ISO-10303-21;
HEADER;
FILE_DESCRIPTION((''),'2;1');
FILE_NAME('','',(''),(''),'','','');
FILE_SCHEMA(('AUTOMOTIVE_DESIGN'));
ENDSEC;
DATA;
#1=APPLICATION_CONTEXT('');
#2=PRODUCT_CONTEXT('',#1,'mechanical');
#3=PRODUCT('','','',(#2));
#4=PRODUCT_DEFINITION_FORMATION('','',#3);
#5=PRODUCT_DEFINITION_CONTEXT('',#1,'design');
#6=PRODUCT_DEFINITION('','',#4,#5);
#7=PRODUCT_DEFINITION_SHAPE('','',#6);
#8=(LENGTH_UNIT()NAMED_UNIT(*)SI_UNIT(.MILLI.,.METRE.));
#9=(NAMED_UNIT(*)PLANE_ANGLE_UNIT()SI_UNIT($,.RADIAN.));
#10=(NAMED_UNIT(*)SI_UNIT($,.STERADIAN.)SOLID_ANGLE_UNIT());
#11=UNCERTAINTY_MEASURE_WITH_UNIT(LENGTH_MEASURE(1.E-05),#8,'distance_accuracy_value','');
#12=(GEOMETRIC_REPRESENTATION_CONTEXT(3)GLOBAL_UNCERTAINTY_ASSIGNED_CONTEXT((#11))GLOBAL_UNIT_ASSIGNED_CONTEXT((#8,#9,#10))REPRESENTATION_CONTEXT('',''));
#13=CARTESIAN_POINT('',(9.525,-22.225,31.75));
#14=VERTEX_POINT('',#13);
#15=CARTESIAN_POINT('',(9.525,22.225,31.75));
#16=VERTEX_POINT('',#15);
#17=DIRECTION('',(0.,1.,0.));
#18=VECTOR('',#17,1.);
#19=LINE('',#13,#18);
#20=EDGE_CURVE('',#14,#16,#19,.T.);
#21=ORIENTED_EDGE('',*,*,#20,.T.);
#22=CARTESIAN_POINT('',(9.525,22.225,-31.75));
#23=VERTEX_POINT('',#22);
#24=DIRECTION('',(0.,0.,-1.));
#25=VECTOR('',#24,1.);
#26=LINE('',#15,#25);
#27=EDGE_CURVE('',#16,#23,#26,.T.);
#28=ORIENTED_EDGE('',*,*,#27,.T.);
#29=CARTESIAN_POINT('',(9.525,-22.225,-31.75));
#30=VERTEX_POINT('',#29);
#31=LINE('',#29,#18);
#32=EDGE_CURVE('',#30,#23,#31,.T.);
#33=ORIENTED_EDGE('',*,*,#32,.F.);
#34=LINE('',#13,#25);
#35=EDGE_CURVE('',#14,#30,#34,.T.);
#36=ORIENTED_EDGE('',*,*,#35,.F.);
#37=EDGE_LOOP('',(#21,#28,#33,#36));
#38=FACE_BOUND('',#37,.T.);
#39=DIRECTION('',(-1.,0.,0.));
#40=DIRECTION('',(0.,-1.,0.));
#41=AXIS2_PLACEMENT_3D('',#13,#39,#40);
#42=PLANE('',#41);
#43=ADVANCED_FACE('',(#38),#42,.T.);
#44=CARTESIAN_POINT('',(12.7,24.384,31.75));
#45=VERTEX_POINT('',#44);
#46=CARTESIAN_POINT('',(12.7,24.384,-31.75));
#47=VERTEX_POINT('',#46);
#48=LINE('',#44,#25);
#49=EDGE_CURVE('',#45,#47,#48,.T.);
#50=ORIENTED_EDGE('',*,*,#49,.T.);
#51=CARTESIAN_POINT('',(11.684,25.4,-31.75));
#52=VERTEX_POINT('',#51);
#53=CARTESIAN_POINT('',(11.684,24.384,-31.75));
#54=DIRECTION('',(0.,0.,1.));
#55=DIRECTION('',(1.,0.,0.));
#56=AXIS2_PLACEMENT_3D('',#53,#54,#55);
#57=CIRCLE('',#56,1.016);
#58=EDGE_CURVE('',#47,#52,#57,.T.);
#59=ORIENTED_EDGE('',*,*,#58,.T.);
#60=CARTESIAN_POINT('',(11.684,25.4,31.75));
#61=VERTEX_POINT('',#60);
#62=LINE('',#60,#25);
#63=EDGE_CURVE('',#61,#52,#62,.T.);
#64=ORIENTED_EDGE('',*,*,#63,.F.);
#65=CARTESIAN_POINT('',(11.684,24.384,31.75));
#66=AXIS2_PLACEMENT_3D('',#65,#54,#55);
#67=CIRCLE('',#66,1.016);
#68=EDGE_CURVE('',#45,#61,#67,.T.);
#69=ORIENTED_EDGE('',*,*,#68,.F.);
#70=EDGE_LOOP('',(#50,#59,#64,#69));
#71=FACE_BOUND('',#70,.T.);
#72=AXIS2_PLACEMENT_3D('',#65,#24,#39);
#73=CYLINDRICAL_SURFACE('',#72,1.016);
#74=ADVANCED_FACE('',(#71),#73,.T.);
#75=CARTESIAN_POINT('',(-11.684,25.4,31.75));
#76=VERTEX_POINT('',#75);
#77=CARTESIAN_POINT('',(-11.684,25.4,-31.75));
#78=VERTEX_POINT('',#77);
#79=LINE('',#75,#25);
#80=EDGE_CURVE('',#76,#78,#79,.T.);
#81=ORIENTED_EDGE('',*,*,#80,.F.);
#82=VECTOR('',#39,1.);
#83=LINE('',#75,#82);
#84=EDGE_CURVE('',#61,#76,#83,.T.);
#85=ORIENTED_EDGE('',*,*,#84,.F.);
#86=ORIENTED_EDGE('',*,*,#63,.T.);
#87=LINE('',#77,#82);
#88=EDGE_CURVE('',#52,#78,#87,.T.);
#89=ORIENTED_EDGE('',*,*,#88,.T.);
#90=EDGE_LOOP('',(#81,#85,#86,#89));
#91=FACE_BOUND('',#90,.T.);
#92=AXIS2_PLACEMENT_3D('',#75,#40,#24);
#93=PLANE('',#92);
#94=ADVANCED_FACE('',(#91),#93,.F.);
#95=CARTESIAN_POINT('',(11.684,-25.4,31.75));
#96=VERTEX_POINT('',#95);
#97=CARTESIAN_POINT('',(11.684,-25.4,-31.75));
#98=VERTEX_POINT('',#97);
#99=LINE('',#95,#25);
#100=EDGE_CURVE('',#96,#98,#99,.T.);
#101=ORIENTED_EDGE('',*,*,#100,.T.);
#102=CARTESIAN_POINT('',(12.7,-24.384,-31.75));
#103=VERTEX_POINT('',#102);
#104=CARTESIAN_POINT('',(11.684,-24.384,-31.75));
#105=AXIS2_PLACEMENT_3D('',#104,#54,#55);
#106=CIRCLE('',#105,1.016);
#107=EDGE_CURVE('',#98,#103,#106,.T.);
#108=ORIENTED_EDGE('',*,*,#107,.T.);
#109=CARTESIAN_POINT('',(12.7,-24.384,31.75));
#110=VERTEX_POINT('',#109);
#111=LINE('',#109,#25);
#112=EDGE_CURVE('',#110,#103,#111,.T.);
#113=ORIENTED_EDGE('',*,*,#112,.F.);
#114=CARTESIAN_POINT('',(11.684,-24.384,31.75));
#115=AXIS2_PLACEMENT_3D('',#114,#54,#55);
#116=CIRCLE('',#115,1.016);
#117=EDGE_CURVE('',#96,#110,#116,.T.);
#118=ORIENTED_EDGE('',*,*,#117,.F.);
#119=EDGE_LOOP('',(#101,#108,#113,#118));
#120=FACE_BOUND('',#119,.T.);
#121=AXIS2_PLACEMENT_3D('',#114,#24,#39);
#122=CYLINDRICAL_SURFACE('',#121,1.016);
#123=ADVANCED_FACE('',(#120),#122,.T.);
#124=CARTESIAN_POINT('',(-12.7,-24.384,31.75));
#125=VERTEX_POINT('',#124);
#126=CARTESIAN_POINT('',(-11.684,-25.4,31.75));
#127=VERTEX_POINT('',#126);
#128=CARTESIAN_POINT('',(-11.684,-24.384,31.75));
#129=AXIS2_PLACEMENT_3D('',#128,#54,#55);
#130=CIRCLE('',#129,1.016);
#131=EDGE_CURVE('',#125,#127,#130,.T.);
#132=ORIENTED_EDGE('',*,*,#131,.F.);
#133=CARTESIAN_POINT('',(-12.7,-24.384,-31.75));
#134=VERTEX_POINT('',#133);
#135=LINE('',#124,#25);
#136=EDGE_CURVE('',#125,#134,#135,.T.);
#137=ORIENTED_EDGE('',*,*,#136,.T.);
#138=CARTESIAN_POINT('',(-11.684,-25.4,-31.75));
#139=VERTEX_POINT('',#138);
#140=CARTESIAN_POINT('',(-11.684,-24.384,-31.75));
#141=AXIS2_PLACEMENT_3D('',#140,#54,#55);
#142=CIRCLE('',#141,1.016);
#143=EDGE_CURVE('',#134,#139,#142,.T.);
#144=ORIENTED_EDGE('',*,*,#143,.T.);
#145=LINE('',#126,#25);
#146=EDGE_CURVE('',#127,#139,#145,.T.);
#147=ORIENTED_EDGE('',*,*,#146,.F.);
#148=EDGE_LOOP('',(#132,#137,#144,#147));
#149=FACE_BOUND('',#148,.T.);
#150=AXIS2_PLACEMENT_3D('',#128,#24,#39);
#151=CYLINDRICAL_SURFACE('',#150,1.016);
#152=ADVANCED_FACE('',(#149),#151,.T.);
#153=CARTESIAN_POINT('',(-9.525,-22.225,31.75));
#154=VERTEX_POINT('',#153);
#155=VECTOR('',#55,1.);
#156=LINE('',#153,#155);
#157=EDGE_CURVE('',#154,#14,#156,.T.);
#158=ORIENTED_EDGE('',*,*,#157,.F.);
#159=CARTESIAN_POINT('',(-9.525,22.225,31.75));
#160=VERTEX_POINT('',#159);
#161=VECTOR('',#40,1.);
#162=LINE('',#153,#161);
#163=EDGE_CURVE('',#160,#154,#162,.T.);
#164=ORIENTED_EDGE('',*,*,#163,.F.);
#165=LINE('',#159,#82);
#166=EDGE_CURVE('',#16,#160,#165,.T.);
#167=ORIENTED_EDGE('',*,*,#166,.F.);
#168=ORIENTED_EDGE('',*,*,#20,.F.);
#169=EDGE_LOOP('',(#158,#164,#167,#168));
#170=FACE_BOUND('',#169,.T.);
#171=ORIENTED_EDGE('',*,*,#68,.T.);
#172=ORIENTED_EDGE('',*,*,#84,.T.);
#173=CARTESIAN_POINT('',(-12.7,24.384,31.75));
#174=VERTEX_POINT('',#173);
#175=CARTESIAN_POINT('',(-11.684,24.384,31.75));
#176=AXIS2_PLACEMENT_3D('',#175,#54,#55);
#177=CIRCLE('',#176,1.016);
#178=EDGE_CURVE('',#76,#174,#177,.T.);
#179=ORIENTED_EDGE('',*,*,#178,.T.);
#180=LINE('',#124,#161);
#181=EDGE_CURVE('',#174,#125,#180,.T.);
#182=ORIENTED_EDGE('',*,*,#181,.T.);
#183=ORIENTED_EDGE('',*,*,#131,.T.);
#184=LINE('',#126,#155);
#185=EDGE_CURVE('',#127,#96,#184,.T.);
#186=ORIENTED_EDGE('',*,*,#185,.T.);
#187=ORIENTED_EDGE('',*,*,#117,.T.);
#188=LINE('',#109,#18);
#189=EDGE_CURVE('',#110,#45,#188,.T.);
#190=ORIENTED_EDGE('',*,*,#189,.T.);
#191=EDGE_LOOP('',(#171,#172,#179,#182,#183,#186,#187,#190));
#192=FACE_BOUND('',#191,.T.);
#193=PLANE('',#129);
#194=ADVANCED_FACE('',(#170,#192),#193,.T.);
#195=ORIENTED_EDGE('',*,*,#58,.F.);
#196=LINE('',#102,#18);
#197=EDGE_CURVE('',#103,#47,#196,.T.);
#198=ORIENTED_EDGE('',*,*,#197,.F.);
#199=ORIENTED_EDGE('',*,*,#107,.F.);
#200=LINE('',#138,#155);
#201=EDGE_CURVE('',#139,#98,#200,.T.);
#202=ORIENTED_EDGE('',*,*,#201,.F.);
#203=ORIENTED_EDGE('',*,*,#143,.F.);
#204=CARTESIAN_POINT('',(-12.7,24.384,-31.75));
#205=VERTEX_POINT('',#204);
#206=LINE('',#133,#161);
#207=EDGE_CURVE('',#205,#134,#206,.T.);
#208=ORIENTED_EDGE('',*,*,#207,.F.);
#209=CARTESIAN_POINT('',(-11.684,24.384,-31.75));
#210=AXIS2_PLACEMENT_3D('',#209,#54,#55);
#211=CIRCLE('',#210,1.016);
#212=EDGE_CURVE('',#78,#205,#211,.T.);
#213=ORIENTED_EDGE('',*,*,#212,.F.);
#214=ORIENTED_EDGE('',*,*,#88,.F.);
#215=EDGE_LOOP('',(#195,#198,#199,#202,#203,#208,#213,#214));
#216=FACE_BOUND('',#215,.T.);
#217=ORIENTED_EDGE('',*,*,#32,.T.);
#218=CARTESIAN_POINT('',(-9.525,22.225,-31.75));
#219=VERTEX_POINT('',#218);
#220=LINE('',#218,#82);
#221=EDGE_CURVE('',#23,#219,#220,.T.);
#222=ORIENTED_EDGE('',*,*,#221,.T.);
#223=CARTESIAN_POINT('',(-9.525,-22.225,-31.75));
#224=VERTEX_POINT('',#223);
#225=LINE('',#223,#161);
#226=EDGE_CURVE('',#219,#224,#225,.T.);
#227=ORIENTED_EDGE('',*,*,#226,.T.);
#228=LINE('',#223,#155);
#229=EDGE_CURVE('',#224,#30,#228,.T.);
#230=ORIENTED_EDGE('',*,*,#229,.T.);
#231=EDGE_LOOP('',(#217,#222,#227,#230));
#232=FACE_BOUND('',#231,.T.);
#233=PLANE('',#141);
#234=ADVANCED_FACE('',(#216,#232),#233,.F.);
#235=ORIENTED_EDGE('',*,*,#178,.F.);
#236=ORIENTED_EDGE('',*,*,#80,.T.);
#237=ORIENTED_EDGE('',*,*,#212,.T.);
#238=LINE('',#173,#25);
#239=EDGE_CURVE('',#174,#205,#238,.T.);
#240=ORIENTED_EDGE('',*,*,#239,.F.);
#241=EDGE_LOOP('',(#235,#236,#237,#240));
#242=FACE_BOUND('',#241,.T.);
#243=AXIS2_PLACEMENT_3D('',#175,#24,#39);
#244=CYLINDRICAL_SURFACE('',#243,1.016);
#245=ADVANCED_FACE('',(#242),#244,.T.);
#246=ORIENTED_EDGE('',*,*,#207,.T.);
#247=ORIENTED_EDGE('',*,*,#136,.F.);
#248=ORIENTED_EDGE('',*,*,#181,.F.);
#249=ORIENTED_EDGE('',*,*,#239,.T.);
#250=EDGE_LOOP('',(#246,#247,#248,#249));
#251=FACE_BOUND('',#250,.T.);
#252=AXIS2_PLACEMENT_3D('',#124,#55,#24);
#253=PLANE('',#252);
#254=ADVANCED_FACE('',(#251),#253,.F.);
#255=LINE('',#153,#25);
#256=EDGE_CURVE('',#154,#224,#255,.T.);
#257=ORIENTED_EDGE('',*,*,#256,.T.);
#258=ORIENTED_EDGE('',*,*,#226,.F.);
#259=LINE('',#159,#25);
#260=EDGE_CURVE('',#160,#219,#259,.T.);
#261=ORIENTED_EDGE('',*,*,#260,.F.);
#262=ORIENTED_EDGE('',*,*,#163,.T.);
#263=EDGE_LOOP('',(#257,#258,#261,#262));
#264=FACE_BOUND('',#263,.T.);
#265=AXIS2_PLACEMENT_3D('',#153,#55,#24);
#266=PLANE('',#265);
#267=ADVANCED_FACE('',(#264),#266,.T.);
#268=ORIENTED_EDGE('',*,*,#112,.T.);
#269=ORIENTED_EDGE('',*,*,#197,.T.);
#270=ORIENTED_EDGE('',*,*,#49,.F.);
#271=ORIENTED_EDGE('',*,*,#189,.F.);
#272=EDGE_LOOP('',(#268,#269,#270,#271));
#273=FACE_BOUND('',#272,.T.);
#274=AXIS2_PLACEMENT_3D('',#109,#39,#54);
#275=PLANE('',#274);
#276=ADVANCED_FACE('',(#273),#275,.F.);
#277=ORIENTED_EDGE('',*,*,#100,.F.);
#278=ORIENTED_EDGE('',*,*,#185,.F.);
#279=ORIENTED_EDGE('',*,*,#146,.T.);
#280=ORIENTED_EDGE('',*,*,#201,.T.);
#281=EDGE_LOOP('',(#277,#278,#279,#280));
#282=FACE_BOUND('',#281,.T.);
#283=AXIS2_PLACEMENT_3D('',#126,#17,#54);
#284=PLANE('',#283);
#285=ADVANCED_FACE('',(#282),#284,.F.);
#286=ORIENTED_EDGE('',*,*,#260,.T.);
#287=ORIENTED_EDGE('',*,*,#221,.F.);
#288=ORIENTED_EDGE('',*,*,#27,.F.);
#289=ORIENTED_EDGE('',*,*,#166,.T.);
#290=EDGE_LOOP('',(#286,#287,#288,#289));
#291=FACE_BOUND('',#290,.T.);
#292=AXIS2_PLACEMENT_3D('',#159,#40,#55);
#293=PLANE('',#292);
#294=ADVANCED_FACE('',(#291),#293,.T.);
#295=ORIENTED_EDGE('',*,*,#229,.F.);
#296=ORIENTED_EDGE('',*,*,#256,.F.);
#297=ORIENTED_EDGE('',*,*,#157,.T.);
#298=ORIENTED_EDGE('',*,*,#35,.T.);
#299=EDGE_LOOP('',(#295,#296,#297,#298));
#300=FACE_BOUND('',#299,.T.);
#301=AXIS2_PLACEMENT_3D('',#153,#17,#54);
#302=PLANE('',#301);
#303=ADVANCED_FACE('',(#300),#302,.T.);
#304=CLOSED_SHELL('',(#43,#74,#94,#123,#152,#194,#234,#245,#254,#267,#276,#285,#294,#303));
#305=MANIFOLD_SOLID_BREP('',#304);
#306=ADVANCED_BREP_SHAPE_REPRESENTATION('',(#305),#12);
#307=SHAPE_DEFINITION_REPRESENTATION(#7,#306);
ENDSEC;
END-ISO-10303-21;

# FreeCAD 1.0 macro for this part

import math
import FreeCAD as App
import Part
import Sketcher

V = App.Vector
Q = App.Units.Quantity

doc = App.newDocument("Part")
body = doc.addObject("PartDesign::Body", "Body")

sketch1 = doc.addObject("Sketcher::SketchObject", "Sketch")
body.addObject(sketch1)
sketch1.AttachmentSupport = (doc.XY_Plane, [""])
sketch1.MapMode = "FlatFace"
sketch1.addGeometry(Part.LineSegment(V(-11.7, -25.4, 0), V(11.7, -25.4, 0)), False)
sketch1.addGeometry(Part.ArcOfCircle(Part.Circle(V(11.7, -24.4, 0), V(0, 0, 1), 1), math.radians(-90), math.radians(0)), False)
sketch1.addGeometry(Part.LineSegment(V(12.7, -24.4, 0), V(12.7, 24.4, 0)), False)
sketch1.addGeometry(Part.ArcOfCircle(Part.Circle(V(11.7, 24.4, 0), V(0, 0, 1), 1), math.radians(0), math.radians(90)), False)
sketch1.addGeometry(Part.LineSegment(V(11.7, 25.4, 0), V(-11.7, 25.4, 0)), False)
sketch1.addGeometry(Part.ArcOfCircle(Part.Circle(V(-11.7, 24.4, 0), V(0, 0, 1), 1), math.radians(90), math.radians(180)), False)
sketch1.addGeometry(Part.LineSegment(V(-12.7, 24.4, 0), V(-12.7, -24.4, 0)), False)
sketch1.addGeometry(Part.ArcOfCircle(Part.Circle(V(-11.7, -24.4, 0), V(0, 0, 1), 1), math.radians(180), math.radians(270)), False)
sketch1.addGeometry(Part.LineSegment(V(9.5, -22.2, 0), V(-9.5, -22.2, 0)), False)
sketch1.addGeometry(Part.LineSegment(V(-9.5, -22.2, 0), V(-9.5, 22.2, 0)), False)
sketch1.addGeometry(Part.LineSegment(V(-9.5, 22.2, 0), V(9.5, 22.2, 0)), False)
sketch1.addGeometry(Part.LineSegment(V(9.5, 22.2, 0), V(9.5, -22.2, 0)), False)
sketch1.addConstraint(Sketcher.Constraint("Tangent", 0, 2, 1, 1))
sketch1.addConstraint(Sketcher.Constraint("Tangent", 1, 2, 2, 1))
sketch1.addConstraint(Sketcher.Constraint("Tangent", 2, 2, 3, 1))
sketch1.addConstraint(Sketcher.Constraint("Tangent", 3, 2, 4, 1))
sketch1.addConstraint(Sketcher.Constraint("Tangent", 4, 2, 5, 1))
sketch1.addConstraint(Sketcher.Constraint("Tangent", 5, 2, 6, 1))
sketch1.addConstraint(Sketcher.Constraint("Tangent", 6, 2, 7, 1))
sketch1.addConstraint(Sketcher.Constraint("Tangent", 7, 2, 0, 1))
sketch1.addConstraint(Sketcher.Constraint("Coincident", 8, 2, 9, 1))
sketch1.addConstraint(Sketcher.Constraint("Coincident", 9, 2, 10, 1))
sketch1.addConstraint(Sketcher.Constraint("Coincident", 10, 2, 11, 1))
sketch1.addConstraint(Sketcher.Constraint("Coincident", 11, 2, 8, 1))
sketch1.addConstraint(Sketcher.Constraint("Horizontal", 0))
sketch1.addConstraint(Sketcher.Constraint("Vertical", 2))
sketch1.addConstraint(Sketcher.Constraint("Horizontal", 4))
sketch1.addConstraint(Sketcher.Constraint("Vertical", 6))
sketch1.addConstraint(Sketcher.Constraint("Horizontal", 8))
sketch1.addConstraint(Sketcher.Constraint("Vertical", 9))
sketch1.addConstraint(Sketcher.Constraint("Horizontal", 10))
sketch1.addConstraint(Sketcher.Constraint("Vertical", 11))
sketch1.addConstraint(Sketcher.Constraint("Equal", 1, 3))
sketch1.addConstraint(Sketcher.Constraint("Equal", 3, 5))
sketch1.addConstraint(Sketcher.Constraint("Equal", 5, 7))
sketch1.addConstraint(Sketcher.Constraint("Symmetric", 1, 3, 5, 3, -1, 1))
sketch1.addConstraint(Sketcher.Constraint("Symmetric", 8, 2, 10, 2, -1, 1))
sketch1.addConstraint(Sketcher.Constraint("Radius", 1, Q("0.04 in")))
sketch1.addConstraint(Sketcher.Constraint("DistanceY", 0, 2, -1, 1, Q("1 in")))
sketch1.addConstraint(Sketcher.Constraint("DistanceX", 5, 2, 2, 2, Q("1 in")))
sketch1.addConstraint(Sketcher.Constraint("DistanceX", 8, 2, 8, 1, Q("0.75 in")))
sketch1.addConstraint(Sketcher.Constraint("DistanceY", 9, 1, 9, 2, Q("1.75 in")))
pad1 = doc.addObject("PartDesign::Pad", "Pad")
body.addObject(pad1)
pad1.Profile = sketch1
pad1.Length = Q("2.5 in")
pad1.Midplane = True

doc.recompute()
